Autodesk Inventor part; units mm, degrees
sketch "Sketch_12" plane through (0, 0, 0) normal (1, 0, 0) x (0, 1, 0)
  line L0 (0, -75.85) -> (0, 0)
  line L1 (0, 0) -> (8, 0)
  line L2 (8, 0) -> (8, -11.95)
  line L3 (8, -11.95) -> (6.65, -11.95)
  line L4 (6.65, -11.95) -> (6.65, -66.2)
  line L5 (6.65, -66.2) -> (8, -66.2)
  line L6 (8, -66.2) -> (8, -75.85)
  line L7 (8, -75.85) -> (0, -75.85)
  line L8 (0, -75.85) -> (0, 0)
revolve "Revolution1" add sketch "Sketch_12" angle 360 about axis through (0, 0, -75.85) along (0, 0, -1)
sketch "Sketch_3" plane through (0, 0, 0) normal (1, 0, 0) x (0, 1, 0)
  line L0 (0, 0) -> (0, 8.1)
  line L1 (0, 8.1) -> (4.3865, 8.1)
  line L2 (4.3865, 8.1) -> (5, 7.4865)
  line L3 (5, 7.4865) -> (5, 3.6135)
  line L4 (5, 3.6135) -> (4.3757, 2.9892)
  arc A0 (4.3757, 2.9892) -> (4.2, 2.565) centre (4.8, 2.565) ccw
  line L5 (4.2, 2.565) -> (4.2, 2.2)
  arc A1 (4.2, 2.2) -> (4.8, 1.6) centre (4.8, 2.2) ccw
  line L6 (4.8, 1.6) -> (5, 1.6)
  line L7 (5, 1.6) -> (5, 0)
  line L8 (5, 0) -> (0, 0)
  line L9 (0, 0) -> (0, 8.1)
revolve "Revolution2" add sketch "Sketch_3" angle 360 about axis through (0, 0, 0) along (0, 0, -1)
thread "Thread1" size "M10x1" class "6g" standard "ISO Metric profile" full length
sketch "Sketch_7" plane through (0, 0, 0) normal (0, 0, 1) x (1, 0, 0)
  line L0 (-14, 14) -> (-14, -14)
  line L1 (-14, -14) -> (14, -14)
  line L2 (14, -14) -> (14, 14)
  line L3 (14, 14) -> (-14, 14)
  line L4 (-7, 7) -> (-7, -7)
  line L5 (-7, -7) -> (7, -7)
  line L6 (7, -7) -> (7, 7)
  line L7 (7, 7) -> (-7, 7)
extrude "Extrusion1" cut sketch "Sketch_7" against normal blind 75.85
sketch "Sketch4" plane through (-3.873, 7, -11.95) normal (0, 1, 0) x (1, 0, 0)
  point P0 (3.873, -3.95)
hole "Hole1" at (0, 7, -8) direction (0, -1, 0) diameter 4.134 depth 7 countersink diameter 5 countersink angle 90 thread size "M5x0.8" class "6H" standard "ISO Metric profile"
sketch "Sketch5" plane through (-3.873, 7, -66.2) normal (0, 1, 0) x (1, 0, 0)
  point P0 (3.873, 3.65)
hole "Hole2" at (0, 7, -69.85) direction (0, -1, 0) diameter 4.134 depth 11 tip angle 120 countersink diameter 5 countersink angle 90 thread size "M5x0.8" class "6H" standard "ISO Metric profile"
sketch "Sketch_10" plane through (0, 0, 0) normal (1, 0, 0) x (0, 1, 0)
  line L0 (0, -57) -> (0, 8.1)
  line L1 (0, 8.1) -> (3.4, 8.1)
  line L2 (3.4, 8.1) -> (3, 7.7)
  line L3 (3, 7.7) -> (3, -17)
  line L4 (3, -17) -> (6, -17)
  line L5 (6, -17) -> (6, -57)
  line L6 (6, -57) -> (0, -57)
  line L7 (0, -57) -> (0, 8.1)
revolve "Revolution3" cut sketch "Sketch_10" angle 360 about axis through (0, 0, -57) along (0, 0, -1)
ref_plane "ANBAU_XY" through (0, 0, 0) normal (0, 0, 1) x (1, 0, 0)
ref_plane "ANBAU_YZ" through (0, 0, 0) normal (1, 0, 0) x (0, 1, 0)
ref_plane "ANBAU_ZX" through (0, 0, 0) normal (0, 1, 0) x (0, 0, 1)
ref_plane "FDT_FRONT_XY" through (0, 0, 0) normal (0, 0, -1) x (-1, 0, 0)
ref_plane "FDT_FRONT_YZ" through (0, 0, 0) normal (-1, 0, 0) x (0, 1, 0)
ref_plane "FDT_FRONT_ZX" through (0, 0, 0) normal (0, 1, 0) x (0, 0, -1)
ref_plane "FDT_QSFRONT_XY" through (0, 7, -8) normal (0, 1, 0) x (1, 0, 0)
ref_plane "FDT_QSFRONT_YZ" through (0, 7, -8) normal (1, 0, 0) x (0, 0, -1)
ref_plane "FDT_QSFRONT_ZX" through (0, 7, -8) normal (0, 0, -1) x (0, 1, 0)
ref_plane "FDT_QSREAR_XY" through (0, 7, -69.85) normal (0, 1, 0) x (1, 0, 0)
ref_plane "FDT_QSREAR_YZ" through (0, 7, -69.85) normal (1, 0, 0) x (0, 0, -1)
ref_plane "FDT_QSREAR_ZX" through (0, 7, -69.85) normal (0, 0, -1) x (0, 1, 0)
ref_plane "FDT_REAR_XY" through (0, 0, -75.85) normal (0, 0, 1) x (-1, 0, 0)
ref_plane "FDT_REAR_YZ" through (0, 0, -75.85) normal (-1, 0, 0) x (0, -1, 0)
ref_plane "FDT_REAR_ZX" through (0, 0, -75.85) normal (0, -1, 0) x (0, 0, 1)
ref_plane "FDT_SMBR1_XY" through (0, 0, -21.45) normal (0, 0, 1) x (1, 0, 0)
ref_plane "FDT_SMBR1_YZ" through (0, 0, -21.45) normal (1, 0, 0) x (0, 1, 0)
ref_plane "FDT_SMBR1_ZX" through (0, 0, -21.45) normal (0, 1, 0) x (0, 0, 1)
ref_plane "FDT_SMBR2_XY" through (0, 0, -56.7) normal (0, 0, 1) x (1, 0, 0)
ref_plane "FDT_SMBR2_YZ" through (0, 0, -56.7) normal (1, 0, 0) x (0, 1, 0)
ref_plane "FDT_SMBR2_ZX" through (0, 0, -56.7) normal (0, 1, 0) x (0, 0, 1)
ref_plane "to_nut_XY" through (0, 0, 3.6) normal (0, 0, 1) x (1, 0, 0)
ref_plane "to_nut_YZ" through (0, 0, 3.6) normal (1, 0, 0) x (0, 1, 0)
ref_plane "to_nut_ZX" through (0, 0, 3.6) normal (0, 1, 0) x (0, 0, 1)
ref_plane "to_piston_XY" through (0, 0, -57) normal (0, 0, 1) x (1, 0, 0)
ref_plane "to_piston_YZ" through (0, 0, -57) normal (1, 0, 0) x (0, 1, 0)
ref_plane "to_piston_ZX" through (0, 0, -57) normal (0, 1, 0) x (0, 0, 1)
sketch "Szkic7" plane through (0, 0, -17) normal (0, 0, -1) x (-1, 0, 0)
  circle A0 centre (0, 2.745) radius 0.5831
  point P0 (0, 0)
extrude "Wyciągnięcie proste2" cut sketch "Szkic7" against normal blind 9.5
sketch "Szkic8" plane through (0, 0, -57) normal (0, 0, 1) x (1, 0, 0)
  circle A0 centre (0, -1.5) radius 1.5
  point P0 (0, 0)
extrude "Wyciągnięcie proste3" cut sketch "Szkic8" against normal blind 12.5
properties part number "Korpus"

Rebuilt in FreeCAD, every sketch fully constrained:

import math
import FreeCAD as App
import Part
import Sketcher

V = App.Vector
Q = App.Units.Quantity


def add_polygon(sketch, points):
    """Adds a closed chain of lines whose ends are joined by coincident constraints."""
    first, n = sketch.GeometryCount, len(points)
    for a, b in zip(points, points[1:] + points[:1]):
        sketch.addGeometry(Part.LineSegment(App.Vector(*a, 0), App.Vector(*b, 0)), False)
    for i in range(n):
        sketch.addConstraint(Sketcher.Constraint("Coincident", first + i, 2, first + (i + 1) % n, 1))

doc = App.newDocument("Part")
body = doc.addObject("PartDesign::Body", "Body")

sketch1 = body.newObject("Sketcher::SketchObject", "Sketch")
sketch1.AttachmentSupport = (doc.getObject("YZ_Plane"), [""])
sketch1.MapMode = "FlatFace"
add_polygon(sketch1, [(0, 0), (0, -75.8), (8, -75.8), (8, -66.2), (6.7, -66.2), (6.7, -11.9), (8, -11.9), (8, 0)])
sketch1.addConstraint(Sketcher.Constraint("Vertical", 0))
sketch1.addConstraint(Sketcher.Constraint("Horizontal", 1))
sketch1.addConstraint(Sketcher.Constraint("Vertical", 2))
sketch1.addConstraint(Sketcher.Constraint("Horizontal", 3))
sketch1.addConstraint(Sketcher.Constraint("Vertical", 4))
sketch1.addConstraint(Sketcher.Constraint("Horizontal", 5))
sketch1.addConstraint(Sketcher.Constraint("Vertical", 6))
sketch1.addConstraint(Sketcher.Constraint("Horizontal", 7))
sketch1.addConstraint(Sketcher.Constraint("Coincident", 7, 2, -1, 1))
sketch1.addConstraint(Sketcher.Constraint("Vertical", 2, 2, 5, 2))
sketch1.addConstraint(Sketcher.Constraint("DistanceX", 1, 1, 1, 2, Q("8 mm")))
sketch1.addConstraint(Sketcher.Constraint("DistanceX", 3, 2, 3, 1, Q("1.35 mm")))
sketch1.addConstraint(Sketcher.Constraint("DistanceY", 0, 2, 0, 1, Q("75.85 mm")))
sketch1.addConstraint(Sketcher.Constraint("DistanceY", 2, 1, 2, 2, Q("9.65 mm")))
sketch1.addConstraint(Sketcher.Constraint("DistanceY", 4, 1, 4, 2, Q("54.25 mm")))
revolution = body.newObject("PartDesign::Revolution", "Revolution")
revolution.Profile = sketch1
revolution.ReferenceAxis = (sketch1, ["V_Axis"])
revolution.Angle = 360

sketch2 = body.newObject("Sketcher::SketchObject", "Sketch001")
sketch2.AttachmentSupport = (doc.getObject("YZ_Plane"), [""])
sketch2.MapMode = "FlatFace"
sketch2.addGeometry(Part.LineSegment(V(0, 8.1, 0), V(0, 0, 0)), False)
sketch2.addGeometry(Part.LineSegment(V(0, 0, 0), V(5, 0, 0)), False)
sketch2.addGeometry(Part.LineSegment(V(5, 0, 0), V(5, 1.6, 0)), False)
sketch2.addGeometry(Part.LineSegment(V(5, 1.6, 0), V(4.8, 1.6, 0)), False)
sketch2.addGeometry(Part.ArcOfCircle(Part.Circle(V(4.8, 2.2, 0), V(0, 0, 1), 0.6), math.radians(180), math.radians(270)), False)
sketch2.addGeometry(Part.LineSegment(V(4.2, 2.2, 0), V(4.2, 2.56, 0)), False)
sketch2.addGeometry(Part.ArcOfCircle(Part.Circle(V(4.8, 2.56, 0), V(0, 0, 1), 0.6), math.radians(135), math.radians(180)), False)
sketch2.addGeometry(Part.LineSegment(V(4.38, 2.99, 0), V(5, 3.61, 0)), False)
sketch2.addGeometry(Part.LineSegment(V(5, 3.61, 0), V(5, 7.49, 0)), False)
sketch2.addGeometry(Part.LineSegment(V(5, 7.49, 0), V(4.39, 8.1, 0)), False)
sketch2.addGeometry(Part.LineSegment(V(4.39, 8.1, 0), V(0, 8.1, 0)), False)
sketch2.addConstraint(Sketcher.Constraint("Coincident", 0, 2, 1, 1))
sketch2.addConstraint(Sketcher.Constraint("Coincident", 1, 2, 2, 1))
sketch2.addConstraint(Sketcher.Constraint("Coincident", 2, 2, 3, 1))
sketch2.addConstraint(Sketcher.Constraint("Tangent", 3, 2, 4, 2))
sketch2.addConstraint(Sketcher.Constraint("Tangent", 4, 1, 5, 1))
sketch2.addConstraint(Sketcher.Constraint("Tangent", 5, 2, 6, 2))
sketch2.addConstraint(Sketcher.Constraint("Tangent", 6, 1, 7, 1))
sketch2.addConstraint(Sketcher.Constraint("Coincident", 7, 2, 8, 1))
sketch2.addConstraint(Sketcher.Constraint("Coincident", 8, 2, 9, 1))
sketch2.addConstraint(Sketcher.Constraint("Coincident", 9, 2, 10, 1))
sketch2.addConstraint(Sketcher.Constraint("Coincident", 10, 2, 0, 1))
sketch2.addConstraint(Sketcher.Constraint("Vertical", 0))
sketch2.addConstraint(Sketcher.Constraint("Horizontal", 1))
sketch2.addConstraint(Sketcher.Constraint("Vertical", 2))
sketch2.addConstraint(Sketcher.Constraint("Horizontal", 3))
sketch2.addConstraint(Sketcher.Constraint("Vertical", 5))
sketch2.addConstraint(Sketcher.Constraint("Vertical", 8))
sketch2.addConstraint(Sketcher.Constraint("Horizontal", 10))
sketch2.addConstraint(Sketcher.Constraint("Coincident", 0, 2, -1, 1))
sketch2.addConstraint(Sketcher.Constraint("Equal", 4, 6))
sketch2.addConstraint(Sketcher.Constraint("Perpendicular", 7, 9))
sketch2.addConstraint(Sketcher.Constraint("Vertical", 2, 2, 7, 2))
sketch2.addConstraint(Sketcher.Constraint("Radius", 4, Q("0.6 mm")))
sketch2.addConstraint(Sketcher.Constraint("DistanceX", 1, 1, 1, 2, Q("5 mm")))
sketch2.addConstraint(Sketcher.Constraint("Angle", 7, Q("45 deg")))
sketch2.addConstraint(Sketcher.Constraint("DistanceX", 3, 2, 3, 1, Q("0.2 mm")))
sketch2.addConstraint(Sketcher.Constraint("DistanceY", 0, 2, 0, 1, Q("8.1 mm")))
sketch2.addConstraint(Sketcher.Constraint("DistanceY", 2, 1, 2, 2, Q("1.6 mm")))
sketch2.addConstraint(Sketcher.Constraint("DistanceY", 5, 1, 5, 2, Q("0.365 mm")))
sketch2.addConstraint(Sketcher.Constraint("DistanceY", 8, 1, 8, 2, Q("3.873 mm")))
revolution2 = body.newObject("PartDesign::Revolution", "Revolution001")
revolution2.Profile = sketch2
revolution2.ReferenceAxis = (sketch2, ["V_Axis"])
revolution2.Angle = 360

sketch3 = body.newObject("Sketcher::SketchObject", "Sketch002")
sketch3.AttachmentSupport = (doc.getObject("XY_Plane"), [""])
sketch3.MapMode = "FlatFace"
add_polygon(sketch3, [(14, 14), (-14, 14), (-14, -14), (14, -14)])
add_polygon(sketch3, [(-7, -7), (-7, 7), (7, 7), (7, -7)])
sketch3.addConstraint(Sketcher.Constraint("Horizontal", 0))
sketch3.addConstraint(Sketcher.Constraint("Vertical", 1))
sketch3.addConstraint(Sketcher.Constraint("Horizontal", 2))
sketch3.addConstraint(Sketcher.Constraint("Vertical", 3))
sketch3.addConstraint(Sketcher.Constraint("Vertical", 4))
sketch3.addConstraint(Sketcher.Constraint("Horizontal", 5))
sketch3.addConstraint(Sketcher.Constraint("Vertical", 6))
sketch3.addConstraint(Sketcher.Constraint("Horizontal", 7))
sketch3.addConstraint(Sketcher.Constraint("Symmetric", 0, 2, 2, 2, -1, 1))
sketch3.addConstraint(Sketcher.Constraint("Symmetric", 4, 2, 6, 2, -1, 1))
sketch3.addConstraint(Sketcher.Constraint("Equal", 2, 1))
sketch3.addConstraint(Sketcher.Constraint("Equal", 7, 4))
sketch3.addConstraint(Sketcher.Constraint("DistanceX", 0, 2, 0, 1, Q("28 mm")))
sketch3.addConstraint(Sketcher.Constraint("DistanceX", 5, 1, 5, 2, Q("14 mm")))
pocket1 = body.newObject("PartDesign::Pocket", "Pocket")
pocket1.Profile = sketch3
pocket1.Length = 75.85

sketch4 = body.newObject("Sketcher::SketchObject", "Sketch003")
sketch4.AttachmentSupport = (doc.getObject("XZ_Plane"), [""])
sketch4.MapMode = "FlatFace"
sketch4.AttachmentOffset = App.Placement(V(0, 0, -7), App.Rotation())
sketch4.addGeometry(Part.Circle(V(0, -8, 0), V(0, 0, 1), 2.1), False)
sketch4.addConstraint(Sketcher.Constraint("PointOnObject", 0, 3, -2))
sketch4.addConstraint(Sketcher.Constraint("Diameter", 0, Q("4.134 mm")))
sketch4.addConstraint(Sketcher.Constraint("DistanceY", 0, 3, -1, 1, Q("8 mm")))
doc.recompute()
hole = body.newObject("PartDesign::Hole", "Hole")
hole.Profile = sketch4
hole.ThreadType = "None"
hole.Diameter = 4.134
hole.DepthType = "Dimension"
hole.Depth = 7
hole.DrillPoint = "Flat"
hole.HoleCutType = "Countersink"
hole.HoleCutDiameter = 5
hole.HoleCutCountersinkAngle = 90
hole.Reversed = True

sketch5 = body.newObject("Sketcher::SketchObject", "Sketch004")
sketch5.AttachmentSupport = (doc.getObject("XZ_Plane"), [""])
sketch5.MapMode = "FlatFace"
sketch5.AttachmentOffset = App.Placement(V(0, 0, -7), App.Rotation())
sketch5.addGeometry(Part.Circle(V(0, -69.8, 0), V(0, 0, 1), 2.1), False)
sketch5.addConstraint(Sketcher.Constraint("PointOnObject", 0, 3, -2))
sketch5.addConstraint(Sketcher.Constraint("Diameter", 0, Q("4.134 mm")))
sketch5.addConstraint(Sketcher.Constraint("DistanceY", 0, 3, -1, 1, Q("69.85 mm")))
doc.recompute()
hole2 = body.newObject("PartDesign::Hole", "Hole001")
hole2.Profile = sketch5
hole2.ThreadType = "None"
hole2.Diameter = 4.134
hole2.DepthType = "Dimension"
hole2.Depth = 11
hole2.DrillPoint = "Angled"
hole2.DrillPointAngle = 120
hole2.HoleCutType = "Countersink"
hole2.HoleCutDiameter = 5
hole2.HoleCutCountersinkAngle = 90
hole2.Reversed = True

sketch6 = body.newObject("Sketcher::SketchObject", "Sketch005")
sketch6.AttachmentSupport = (doc.getObject("YZ_Plane"), [""])
sketch6.MapMode = "FlatFace"
add_polygon(sketch6, [(0, 8.1), (0, -57), (6, -57), (6, -17), (3, -17), (3, 7.7), (3.4, 8.1)])
sketch6.addConstraint(Sketcher.Constraint("Vertical", 0))
sketch6.addConstraint(Sketcher.Constraint("Horizontal", 1))
sketch6.addConstraint(Sketcher.Constraint("Vertical", 2))
sketch6.addConstraint(Sketcher.Constraint("Horizontal", 3))
sketch6.addConstraint(Sketcher.Constraint("Vertical", 4))
sketch6.addConstraint(Sketcher.Constraint("Horizontal", 6))
sketch6.addConstraint(Sketcher.Constraint("PointOnObject", 0, 2, -2))
sketch6.addConstraint(Sketcher.Constraint("DistanceX", 1, 1, 1, 2, Q("6 mm")))
sketch6.addConstraint(Sketcher.Constraint("DistanceX", 3, 2, 3, 1, Q("3 mm")))
sketch6.addConstraint(Sketcher.Constraint("DistanceY", 2, 1, 2, 2, Q("40 mm")))
sketch6.addConstraint(Sketcher.Constraint("Angle", 5, Q("45 deg")))
sketch6.addConstraint(Sketcher.Constraint("DistanceX", 6, 2, 6, 1, Q("3.4 mm")))
sketch6.addConstraint(Sketcher.Constraint("DistanceY", 0, 2, 0, 1, Q("65.1 mm")))
sketch6.addConstraint(Sketcher.Constraint("DistanceY", 0, 2, -1, 1, Q("57 mm")))
groove = body.newObject("PartDesign::Groove", "Groove")
groove.Profile = sketch6
groove.ReferenceAxis = (sketch6, ["V_Axis"])
groove.Angle = 360

sketch7 = body.newObject("Sketcher::SketchObject", "Sketch006")
sketch7.AttachmentSupport = (doc.getObject("XY_Plane"), [""])
sketch7.MapMode = "FlatFace"
sketch7.AttachmentOffset = App.Placement(V(0, 0, -17), App.Rotation())
sketch7.addGeometry(Part.Circle(V(0, 2.7, 0), V(0, 0, 1), 0.6), False)
sketch7.addConstraint(Sketcher.Constraint("PointOnObject", 0, 3, -2))
sketch7.addConstraint(Sketcher.Constraint("Diameter", 0, Q("1.1662 mm")))
sketch7.addConstraint(Sketcher.Constraint("DistanceY", -1, 1, 0, 3, Q("2.745 mm")))
pocket2 = body.newObject("PartDesign::Pocket", "Pocket001")
pocket2.Profile = sketch7
pocket2.Length = 9.5
pocket2.Reversed = True

sketch8 = body.newObject("Sketcher::SketchObject", "Sketch007")
sketch8.AttachmentSupport = (doc.getObject("XY_Plane"), [""])
sketch8.MapMode = "FlatFace"
sketch8.AttachmentOffset = App.Placement(V(0, 0, -57), App.Rotation())
sketch8.addGeometry(Part.Circle(V(0, -1.5, 0), V(0, 0, 1), 1.5), False)
sketch8.addConstraint(Sketcher.Constraint("PointOnObject", 0, 3, -2))
sketch8.addConstraint(Sketcher.Constraint("Diameter", 0, Q("3 mm")))
sketch8.addConstraint(Sketcher.Constraint("DistanceY", 0, 3, -1, 1, Q("1.5 mm")))
pocket3 = body.newObject("PartDesign::Pocket", "Pocket002")
pocket3.Profile = sketch8
pocket3.Length = 12.5

doc.recompute()
